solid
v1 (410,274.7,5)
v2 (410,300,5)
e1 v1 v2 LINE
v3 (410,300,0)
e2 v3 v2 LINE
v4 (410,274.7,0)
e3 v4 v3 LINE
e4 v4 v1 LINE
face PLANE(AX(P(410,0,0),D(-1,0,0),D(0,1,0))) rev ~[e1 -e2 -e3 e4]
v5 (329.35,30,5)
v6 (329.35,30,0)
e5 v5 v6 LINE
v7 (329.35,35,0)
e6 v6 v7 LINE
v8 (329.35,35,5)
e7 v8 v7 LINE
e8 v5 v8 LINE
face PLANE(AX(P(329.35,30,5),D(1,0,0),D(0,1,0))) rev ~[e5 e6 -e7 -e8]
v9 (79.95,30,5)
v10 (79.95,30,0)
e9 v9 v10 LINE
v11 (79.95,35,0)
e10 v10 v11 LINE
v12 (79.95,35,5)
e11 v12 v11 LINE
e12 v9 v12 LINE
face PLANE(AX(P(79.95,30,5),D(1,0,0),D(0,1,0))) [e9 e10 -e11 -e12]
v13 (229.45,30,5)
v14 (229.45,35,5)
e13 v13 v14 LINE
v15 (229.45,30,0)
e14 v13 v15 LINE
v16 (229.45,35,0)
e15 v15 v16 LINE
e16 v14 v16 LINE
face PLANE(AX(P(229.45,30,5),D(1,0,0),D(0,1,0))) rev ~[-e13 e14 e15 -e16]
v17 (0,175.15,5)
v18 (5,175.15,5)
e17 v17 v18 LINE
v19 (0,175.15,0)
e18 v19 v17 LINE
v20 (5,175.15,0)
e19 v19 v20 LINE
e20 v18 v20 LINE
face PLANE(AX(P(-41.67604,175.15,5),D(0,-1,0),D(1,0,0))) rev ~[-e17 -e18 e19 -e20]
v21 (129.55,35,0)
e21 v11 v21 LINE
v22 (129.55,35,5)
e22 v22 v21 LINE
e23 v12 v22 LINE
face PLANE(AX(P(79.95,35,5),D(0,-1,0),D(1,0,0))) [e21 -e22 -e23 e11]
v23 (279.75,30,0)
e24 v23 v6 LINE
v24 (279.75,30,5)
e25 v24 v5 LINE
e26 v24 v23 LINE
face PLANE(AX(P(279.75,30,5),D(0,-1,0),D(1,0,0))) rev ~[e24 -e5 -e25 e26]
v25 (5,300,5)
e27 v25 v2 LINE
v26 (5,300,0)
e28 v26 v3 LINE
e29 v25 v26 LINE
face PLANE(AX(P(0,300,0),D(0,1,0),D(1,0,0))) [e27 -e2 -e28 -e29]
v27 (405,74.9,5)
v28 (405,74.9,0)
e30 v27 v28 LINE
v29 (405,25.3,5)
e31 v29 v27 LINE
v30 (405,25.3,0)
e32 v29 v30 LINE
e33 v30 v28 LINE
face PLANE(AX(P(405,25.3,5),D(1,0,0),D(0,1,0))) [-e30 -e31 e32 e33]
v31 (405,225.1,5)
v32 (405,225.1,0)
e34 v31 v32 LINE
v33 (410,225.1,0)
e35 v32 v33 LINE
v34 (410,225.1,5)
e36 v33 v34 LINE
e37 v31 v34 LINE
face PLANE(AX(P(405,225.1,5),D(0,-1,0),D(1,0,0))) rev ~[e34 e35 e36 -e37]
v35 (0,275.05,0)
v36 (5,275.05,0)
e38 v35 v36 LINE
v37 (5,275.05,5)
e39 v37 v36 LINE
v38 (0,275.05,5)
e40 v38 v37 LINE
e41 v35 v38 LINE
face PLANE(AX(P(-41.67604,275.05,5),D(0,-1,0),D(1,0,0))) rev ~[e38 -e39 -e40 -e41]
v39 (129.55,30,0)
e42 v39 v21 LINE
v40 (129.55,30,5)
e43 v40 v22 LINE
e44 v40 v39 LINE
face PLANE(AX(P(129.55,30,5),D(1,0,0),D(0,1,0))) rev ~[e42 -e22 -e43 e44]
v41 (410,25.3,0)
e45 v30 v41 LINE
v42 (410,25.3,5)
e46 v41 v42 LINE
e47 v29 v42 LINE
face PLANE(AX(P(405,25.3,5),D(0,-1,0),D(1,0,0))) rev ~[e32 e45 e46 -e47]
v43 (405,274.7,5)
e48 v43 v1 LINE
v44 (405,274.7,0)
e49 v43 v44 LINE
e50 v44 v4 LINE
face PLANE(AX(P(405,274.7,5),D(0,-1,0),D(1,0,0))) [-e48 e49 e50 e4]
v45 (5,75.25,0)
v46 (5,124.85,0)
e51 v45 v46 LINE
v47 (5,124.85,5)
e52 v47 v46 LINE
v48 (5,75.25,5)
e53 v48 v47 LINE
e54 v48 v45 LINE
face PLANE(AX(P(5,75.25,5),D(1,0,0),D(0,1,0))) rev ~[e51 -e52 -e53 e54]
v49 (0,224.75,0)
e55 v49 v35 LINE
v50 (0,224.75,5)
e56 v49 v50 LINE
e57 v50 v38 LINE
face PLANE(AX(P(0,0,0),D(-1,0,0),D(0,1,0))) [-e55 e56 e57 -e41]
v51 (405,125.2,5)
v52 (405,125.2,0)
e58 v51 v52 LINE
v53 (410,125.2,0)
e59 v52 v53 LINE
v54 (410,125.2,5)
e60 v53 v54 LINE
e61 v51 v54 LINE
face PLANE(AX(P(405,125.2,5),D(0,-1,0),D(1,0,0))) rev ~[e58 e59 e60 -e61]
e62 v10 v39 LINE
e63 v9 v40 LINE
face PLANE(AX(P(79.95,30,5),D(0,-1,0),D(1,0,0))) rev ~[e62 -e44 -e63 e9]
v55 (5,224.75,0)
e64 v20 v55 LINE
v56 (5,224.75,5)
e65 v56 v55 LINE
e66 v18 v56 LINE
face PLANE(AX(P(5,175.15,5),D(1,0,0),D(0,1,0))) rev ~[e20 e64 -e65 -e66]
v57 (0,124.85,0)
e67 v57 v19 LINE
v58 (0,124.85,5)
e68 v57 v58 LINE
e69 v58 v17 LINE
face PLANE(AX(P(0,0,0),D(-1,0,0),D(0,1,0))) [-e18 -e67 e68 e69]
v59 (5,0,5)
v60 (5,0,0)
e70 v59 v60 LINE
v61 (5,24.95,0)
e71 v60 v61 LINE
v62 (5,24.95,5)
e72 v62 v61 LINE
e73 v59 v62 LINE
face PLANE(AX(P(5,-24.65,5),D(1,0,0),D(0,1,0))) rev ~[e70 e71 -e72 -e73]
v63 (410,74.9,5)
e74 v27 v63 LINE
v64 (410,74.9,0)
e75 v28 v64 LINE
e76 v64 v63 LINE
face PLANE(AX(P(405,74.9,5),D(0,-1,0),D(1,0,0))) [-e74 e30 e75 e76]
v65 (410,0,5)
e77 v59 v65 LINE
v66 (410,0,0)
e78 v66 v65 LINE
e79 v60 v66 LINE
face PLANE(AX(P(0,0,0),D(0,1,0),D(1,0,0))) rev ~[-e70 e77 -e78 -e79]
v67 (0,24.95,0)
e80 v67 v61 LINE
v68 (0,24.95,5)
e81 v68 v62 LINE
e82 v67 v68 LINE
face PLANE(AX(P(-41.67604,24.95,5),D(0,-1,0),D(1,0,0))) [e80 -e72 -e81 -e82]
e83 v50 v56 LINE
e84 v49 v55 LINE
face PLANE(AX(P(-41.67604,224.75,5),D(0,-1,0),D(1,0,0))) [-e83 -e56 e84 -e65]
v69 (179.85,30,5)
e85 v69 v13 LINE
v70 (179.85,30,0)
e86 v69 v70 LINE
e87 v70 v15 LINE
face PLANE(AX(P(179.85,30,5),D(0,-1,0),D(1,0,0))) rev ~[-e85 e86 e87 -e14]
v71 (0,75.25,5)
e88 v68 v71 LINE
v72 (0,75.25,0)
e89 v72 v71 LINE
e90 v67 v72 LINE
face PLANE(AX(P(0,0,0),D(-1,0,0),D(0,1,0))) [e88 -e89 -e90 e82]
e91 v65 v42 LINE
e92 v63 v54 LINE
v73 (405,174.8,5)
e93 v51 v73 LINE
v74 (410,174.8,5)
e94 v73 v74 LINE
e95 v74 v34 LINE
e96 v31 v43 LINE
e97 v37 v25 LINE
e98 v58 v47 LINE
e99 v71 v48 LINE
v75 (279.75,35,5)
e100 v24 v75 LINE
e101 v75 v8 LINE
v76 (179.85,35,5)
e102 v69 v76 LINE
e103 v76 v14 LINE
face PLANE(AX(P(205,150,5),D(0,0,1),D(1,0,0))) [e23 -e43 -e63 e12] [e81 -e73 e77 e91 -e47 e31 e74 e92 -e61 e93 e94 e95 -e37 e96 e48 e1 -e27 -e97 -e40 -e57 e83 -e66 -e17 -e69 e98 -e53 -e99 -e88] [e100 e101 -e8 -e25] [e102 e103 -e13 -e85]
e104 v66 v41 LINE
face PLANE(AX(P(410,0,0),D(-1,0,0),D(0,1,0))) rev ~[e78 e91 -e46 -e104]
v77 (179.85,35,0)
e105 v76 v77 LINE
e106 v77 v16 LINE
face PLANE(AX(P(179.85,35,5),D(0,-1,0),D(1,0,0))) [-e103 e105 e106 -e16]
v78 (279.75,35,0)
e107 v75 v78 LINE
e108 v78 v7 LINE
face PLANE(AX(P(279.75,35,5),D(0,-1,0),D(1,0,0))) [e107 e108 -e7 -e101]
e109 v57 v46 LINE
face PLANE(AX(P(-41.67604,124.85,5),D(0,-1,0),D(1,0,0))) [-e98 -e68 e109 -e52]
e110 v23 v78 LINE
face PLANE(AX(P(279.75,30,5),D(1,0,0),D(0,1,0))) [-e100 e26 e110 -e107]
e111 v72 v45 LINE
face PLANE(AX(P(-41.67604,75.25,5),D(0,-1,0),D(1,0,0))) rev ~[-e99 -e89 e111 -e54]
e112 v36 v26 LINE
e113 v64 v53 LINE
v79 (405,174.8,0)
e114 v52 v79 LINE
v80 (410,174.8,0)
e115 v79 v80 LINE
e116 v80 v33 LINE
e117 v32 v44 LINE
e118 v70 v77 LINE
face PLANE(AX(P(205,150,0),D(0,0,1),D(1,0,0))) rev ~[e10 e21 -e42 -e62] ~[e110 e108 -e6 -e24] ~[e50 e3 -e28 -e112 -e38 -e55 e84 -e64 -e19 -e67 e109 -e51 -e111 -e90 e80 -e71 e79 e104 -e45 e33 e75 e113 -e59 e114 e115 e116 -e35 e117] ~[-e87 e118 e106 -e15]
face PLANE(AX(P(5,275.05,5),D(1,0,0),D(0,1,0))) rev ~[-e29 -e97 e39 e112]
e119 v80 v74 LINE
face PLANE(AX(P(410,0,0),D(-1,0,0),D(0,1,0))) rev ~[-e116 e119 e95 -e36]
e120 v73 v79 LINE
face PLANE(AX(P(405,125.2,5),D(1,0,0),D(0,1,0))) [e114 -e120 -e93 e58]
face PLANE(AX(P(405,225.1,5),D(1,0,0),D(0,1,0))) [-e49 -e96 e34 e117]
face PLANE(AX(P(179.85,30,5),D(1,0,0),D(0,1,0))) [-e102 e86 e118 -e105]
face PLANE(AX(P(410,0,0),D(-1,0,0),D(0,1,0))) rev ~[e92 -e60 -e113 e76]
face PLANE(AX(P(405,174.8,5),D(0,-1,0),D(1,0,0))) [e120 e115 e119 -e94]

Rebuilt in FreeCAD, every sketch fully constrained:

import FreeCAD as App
import Part
import Sketcher
from FreeCAD import Vector
Q = App.Units.Quantity

doc = App.newDocument("Part")
params = doc.addObject("Spreadsheet::Sheet", "Params")
for row, (alias, value) in enumerate([
    ("sketch1_width", "410 mm"),
    ("sketch1_height", "300 mm"),
    ("pad1_length", "5 mm"),
    ("sketch2_height", "49.6 mm"),
    ("pocket1_length", "5 mm"),
    ("linearpattern_pitch", "99.9 mm"),
    ("sketch3_height", "49.6 mm"),
    ("pocket2_length", "5 mm"),
    ("linearpattern2_pitch", "99.9 mm"),
    ("sketch4_height", "5 mm"),
    ("sketch4_width", "49.6 mm"),
    ("pocket3_length", "5 mm"),
    ("linearpattern3_pitch", "99.9 mm"),
], start=1):
    params.set(f"A{row}", alias)
    params.set(f"B{row}", "=" + value)
    params.setAlias(f"B{row}", alias)

body = doc.addObject("PartDesign::Body", "Body")

sketch1 = body.newObject("Sketcher::SketchObject", "Sketch")
sketch1.AttachmentSupport = (doc.getObject("XY_Plane"), [""])
sketch1.MapMode = "FlatFace"
sketch1.addGeometry([
    Part.LineSegment(Vector(0, 300, 0), Vector(0, 0, 0)),
    Part.LineSegment(Vector(0, 0, 0), Vector(410, 0, 0)),
    Part.LineSegment(Vector(410, 0, 0), Vector(410, 300, 0)),
    Part.LineSegment(Vector(410, 300, 0), Vector(0, 300, 0)),
], False)
sketch1.addConstraint([
    Sketcher.Constraint("Coincident", 0, 2, 1, 1),
    Sketcher.Constraint("Coincident", 1, 2, 2, 1),
    Sketcher.Constraint("Coincident", 2, 2, 3, 1),
    Sketcher.Constraint("Coincident", 3, 2, 0, 1),
    Sketcher.Constraint("Vertical", 0),
    Sketcher.Constraint("Horizontal", 1),
    Sketcher.Constraint("Vertical", 2),
    Sketcher.Constraint("Horizontal", 3),
    Sketcher.Constraint("Coincident", 0, 2, -1, 1),
    Sketcher.Constraint("DistanceX", 1, 1, 1, 2, Q("410 mm")),
    Sketcher.Constraint("DistanceY", 0, 2, 0, 1, Q("300 mm")),
])
sketch1.setExpression("Constraints[9]", "Params.sketch1_width")
sketch1.setExpression("Constraints[10]", "Params.sketch1_height")
pad1 = body.newObject("PartDesign::Pad", "Pad")
pad1.Profile = sketch1
pad1.setExpression("Length", "Params.pad1_length")

sketch2 = body.newObject("Sketcher::SketchObject", "Sketch001")
sketch2.AttachmentSupport = (doc.getObject("XY_Plane"), [""])
sketch2.MapMode = "FlatFace"
sketch2.AttachmentOffset = App.Placement(Vector(0, 0, 5), App.Rotation())
sketch2.addGeometry([
    Part.LineSegment(Vector(-42, 325, 0), Vector(-42, 275, 0)),
    Part.LineSegment(Vector(-42, 275, 0), Vector(5, 275, 0)),
    Part.LineSegment(Vector(5, 275, 0), Vector(5, 325, 0)),
    Part.LineSegment(Vector(5, 325, 0), Vector(-42, 325, 0)),
], False)
sketch2.addConstraint([
    Sketcher.Constraint("Coincident", 0, 2, 1, 1),
    Sketcher.Constraint("Coincident", 1, 2, 2, 1),
    Sketcher.Constraint("Coincident", 2, 2, 3, 1),
    Sketcher.Constraint("Coincident", 3, 2, 0, 1),
    Sketcher.Constraint("Vertical", 0),
    Sketcher.Constraint("Horizontal", 1),
    Sketcher.Constraint("Vertical", 2),
    Sketcher.Constraint("Horizontal", 3),
    Sketcher.Constraint("DistanceY", 0, 2, 0, 1, Q("49.6 mm")),
    Sketcher.Constraint("DistanceX", -1, 1, 1, 2, Q("5 mm")),
    Sketcher.Constraint("DistanceY", -1, 1, 0, 2, Q("275.05 mm")),
    Sketcher.Constraint("DistanceX", 1, 1, 1, 2, Q("46.67604 mm")),
])
sketch2.setExpression("Constraints[8]", "Params.sketch2_height")
pocket1 = body.newObject("PartDesign::Pocket", "Pocket")
pocket1.Profile = sketch2
pocket1.setExpression("Length", "Params.pocket1_length")
doc.recompute()

linearpattern = body.newObject("PartDesign::LinearPattern", "LinearPattern")
linearpattern.Originals = [pocket1]
linearpattern.Direction = (doc.getObject("Y_Axis"), [""])
linearpattern.Mode = "offset"
linearpattern.setExpression("Offset", "Params.linearpattern_pitch")
linearpattern.Occurrences = 4
linearpattern.Reversed = True
body.Tip = linearpattern

sketch3 = body.newObject("Sketcher::SketchObject", "Sketch002")
sketch3.AttachmentSupport = (doc.getObject("XY_Plane"), [""])
sketch3.MapMode = "FlatFace"
sketch3.AttachmentOffset = App.Placement(Vector(0, 0, 5), App.Rotation())
sketch3.addGeometry([
    Part.LineSegment(Vector(405, 275, 0), Vector(405, 225, 0)),
    Part.LineSegment(Vector(405, 225, 0), Vector(433, 225, 0)),
    Part.LineSegment(Vector(433, 225, 0), Vector(433, 275, 0)),
    Part.LineSegment(Vector(433, 275, 0), Vector(405, 275, 0)),
], False)
sketch3.addConstraint([
    Sketcher.Constraint("Coincident", 0, 2, 1, 1),
    Sketcher.Constraint("Coincident", 1, 2, 2, 1),
    Sketcher.Constraint("Coincident", 2, 2, 3, 1),
    Sketcher.Constraint("Coincident", 3, 2, 0, 1),
    Sketcher.Constraint("Vertical", 0),
    Sketcher.Constraint("Horizontal", 1),
    Sketcher.Constraint("Vertical", 2),
    Sketcher.Constraint("Horizontal", 3),
    Sketcher.Constraint("DistanceY", 0, 2, 0, 1, Q("49.6 mm")),
    Sketcher.Constraint("DistanceX", -1, 1, 0, 2, Q("405 mm")),
    Sketcher.Constraint("DistanceY", -1, 1, 0, 2, Q("225.1 mm")),
    Sketcher.Constraint("DistanceX", 1, 1, 1, 2, Q("27.663601 mm")),
])
sketch3.setExpression("Constraints[8]", "Params.sketch3_height")
pocket2 = body.newObject("PartDesign::Pocket", "Pocket001")
pocket2.Profile = sketch3
pocket2.setExpression("Length", "Params.pocket2_length")
doc.recompute()

linearpattern2 = body.newObject("PartDesign::LinearPattern", "LinearPattern001")
linearpattern2.Originals = [pocket2]
linearpattern2.Direction = (doc.getObject("Y_Axis"), [""])
linearpattern2.Mode = "offset"
linearpattern2.setExpression("Offset", "Params.linearpattern2_pitch")
linearpattern2.Occurrences = 3
linearpattern2.Reversed = True
body.Tip = linearpattern2

sketch4 = body.newObject("Sketcher::SketchObject", "Sketch003")
sketch4.AttachmentSupport = (doc.getObject("XY_Plane"), [""])
sketch4.MapMode = "FlatFace"
sketch4.AttachmentOffset = App.Placement(Vector(0, 0, 5), App.Rotation())
sketch4.addGeometry([
    Part.LineSegment(Vector(80, 35, 0), Vector(80, 30, 0)),
    Part.LineSegment(Vector(80, 30, 0), Vector(130, 30, 0)),
    Part.LineSegment(Vector(130, 30, 0), Vector(130, 35, 0)),
    Part.LineSegment(Vector(130, 35, 0), Vector(80, 35, 0)),
], False)
sketch4.addConstraint([
    Sketcher.Constraint("Coincident", 0, 2, 1, 1),
    Sketcher.Constraint("Coincident", 1, 2, 2, 1),
    Sketcher.Constraint("Coincident", 2, 2, 3, 1),
    Sketcher.Constraint("Coincident", 3, 2, 0, 1),
    Sketcher.Constraint("Vertical", 0),
    Sketcher.Constraint("Horizontal", 1),
    Sketcher.Constraint("Vertical", 2),
    Sketcher.Constraint("Horizontal", 3),
    Sketcher.Constraint("DistanceY", 0, 2, 0, 1, Q("5 mm")),
    Sketcher.Constraint("DistanceX", 1, 1, 1, 2, Q("49.6 mm")),
    Sketcher.Constraint("DistanceY", -1, 1, 0, 2, Q("30 mm")),
    Sketcher.Constraint("DistanceX", -1, 1, 0, 2, Q("79.95 mm")),
])
sketch4.setExpression("Constraints[8]", "Params.sketch4_height")
sketch4.setExpression("Constraints[9]", "Params.sketch4_width")
pocket3 = body.newObject("PartDesign::Pocket", "Pocket002")
pocket3.Profile = sketch4
pocket3.setExpression("Length", "Params.pocket3_length")
doc.recompute()

linearpattern3 = body.newObject("PartDesign::LinearPattern", "LinearPattern002")
linearpattern3.Originals = [pocket3]
linearpattern3.Direction = (doc.getObject("X_Axis"), [""])
linearpattern3.Mode = "offset"
linearpattern3.setExpression("Offset", "Params.linearpattern3_pitch")
linearpattern3.Occurrences = 3
body.Tip = linearpattern3

doc.recompute()
